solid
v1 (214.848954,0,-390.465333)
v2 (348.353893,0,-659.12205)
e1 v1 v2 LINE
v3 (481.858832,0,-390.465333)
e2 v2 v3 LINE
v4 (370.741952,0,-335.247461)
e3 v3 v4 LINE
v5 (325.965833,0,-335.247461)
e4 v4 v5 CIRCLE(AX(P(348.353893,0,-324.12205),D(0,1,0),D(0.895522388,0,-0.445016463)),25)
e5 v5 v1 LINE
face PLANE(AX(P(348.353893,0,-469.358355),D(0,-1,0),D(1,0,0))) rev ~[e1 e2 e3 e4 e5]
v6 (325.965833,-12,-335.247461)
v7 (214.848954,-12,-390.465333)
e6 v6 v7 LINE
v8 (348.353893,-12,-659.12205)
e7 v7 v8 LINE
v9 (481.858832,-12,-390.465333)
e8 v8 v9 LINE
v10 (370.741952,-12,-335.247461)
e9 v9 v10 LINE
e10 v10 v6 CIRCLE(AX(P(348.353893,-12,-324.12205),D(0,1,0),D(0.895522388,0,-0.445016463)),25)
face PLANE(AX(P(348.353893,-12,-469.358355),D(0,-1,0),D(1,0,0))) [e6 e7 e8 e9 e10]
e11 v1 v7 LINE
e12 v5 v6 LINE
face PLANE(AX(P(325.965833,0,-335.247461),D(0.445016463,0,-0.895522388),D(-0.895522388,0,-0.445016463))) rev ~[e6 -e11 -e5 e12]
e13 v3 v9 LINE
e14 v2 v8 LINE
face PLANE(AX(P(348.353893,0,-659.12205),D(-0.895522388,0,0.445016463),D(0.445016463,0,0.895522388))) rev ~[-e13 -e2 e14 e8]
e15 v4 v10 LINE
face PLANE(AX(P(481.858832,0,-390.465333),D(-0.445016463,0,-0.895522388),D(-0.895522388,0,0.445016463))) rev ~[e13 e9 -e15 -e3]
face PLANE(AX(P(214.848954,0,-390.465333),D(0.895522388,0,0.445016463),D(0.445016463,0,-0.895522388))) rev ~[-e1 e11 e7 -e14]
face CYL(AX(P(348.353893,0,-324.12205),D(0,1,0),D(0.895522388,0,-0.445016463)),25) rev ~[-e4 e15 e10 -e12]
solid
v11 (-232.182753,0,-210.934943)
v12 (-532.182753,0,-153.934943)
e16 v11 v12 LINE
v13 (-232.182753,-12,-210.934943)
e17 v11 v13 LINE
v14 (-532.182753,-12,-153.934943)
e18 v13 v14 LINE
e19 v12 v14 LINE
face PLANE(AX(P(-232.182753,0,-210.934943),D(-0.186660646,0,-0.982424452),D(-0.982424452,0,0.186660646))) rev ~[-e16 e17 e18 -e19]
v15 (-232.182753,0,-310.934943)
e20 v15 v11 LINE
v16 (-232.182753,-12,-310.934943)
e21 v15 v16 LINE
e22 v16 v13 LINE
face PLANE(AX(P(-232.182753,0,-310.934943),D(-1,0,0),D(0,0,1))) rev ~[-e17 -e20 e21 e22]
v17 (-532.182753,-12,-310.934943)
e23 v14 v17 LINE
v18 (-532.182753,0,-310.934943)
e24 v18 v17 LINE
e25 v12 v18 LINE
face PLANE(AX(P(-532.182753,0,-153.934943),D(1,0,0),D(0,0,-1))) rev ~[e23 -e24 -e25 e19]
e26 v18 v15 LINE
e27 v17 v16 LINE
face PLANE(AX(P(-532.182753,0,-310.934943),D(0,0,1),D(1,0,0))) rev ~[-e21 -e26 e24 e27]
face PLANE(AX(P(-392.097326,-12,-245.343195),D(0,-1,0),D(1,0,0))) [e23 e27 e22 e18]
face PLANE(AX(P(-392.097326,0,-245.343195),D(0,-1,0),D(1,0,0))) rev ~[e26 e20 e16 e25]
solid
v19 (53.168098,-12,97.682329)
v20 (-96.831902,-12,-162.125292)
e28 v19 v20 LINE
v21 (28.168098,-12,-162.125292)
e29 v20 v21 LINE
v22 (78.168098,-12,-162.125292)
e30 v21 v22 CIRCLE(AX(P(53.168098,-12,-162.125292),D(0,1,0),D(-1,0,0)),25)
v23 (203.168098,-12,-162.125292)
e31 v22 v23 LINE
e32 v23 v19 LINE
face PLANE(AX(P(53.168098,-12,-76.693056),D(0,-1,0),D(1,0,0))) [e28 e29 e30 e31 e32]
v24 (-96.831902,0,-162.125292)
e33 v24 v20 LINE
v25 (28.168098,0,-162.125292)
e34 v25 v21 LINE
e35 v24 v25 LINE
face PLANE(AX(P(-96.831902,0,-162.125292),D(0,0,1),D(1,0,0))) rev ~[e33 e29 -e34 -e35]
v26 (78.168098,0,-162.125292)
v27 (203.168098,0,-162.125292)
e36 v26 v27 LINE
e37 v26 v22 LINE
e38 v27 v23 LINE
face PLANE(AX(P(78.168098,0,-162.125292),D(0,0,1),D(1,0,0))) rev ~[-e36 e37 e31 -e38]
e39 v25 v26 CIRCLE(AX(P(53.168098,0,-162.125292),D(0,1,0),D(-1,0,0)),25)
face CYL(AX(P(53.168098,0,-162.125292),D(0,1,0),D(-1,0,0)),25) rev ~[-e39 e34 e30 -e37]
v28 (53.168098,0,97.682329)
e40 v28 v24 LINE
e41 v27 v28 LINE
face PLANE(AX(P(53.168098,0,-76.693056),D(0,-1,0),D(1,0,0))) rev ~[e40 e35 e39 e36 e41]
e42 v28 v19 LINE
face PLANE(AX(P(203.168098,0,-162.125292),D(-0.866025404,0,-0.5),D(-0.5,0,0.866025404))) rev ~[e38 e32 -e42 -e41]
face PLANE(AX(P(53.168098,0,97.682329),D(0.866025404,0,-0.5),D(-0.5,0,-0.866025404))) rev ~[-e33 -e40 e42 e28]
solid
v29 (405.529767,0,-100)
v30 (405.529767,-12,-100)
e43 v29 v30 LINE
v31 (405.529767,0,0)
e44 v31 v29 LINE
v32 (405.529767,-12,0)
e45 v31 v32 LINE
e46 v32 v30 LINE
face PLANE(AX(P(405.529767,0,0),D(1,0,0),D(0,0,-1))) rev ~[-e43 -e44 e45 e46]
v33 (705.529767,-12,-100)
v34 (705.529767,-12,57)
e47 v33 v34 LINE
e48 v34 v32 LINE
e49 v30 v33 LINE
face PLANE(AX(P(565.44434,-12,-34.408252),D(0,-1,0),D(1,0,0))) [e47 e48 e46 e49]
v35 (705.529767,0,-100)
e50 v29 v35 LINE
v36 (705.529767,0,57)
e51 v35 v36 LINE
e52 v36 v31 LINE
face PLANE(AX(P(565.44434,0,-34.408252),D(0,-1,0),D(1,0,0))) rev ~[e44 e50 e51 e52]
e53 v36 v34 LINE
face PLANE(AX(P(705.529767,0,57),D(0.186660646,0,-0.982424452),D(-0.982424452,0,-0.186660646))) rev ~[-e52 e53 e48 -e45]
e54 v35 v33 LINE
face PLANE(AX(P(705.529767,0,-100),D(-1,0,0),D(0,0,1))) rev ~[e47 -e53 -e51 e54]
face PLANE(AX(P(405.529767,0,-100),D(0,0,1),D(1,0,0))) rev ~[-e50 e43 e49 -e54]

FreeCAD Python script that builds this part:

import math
import FreeCAD as App
import Part
import Sketcher
from FreeCAD import Vector
Q = App.Units.Quantity

doc = App.newDocument("Part")
params = doc.addObject("Spreadsheet::Sheet", "Params")
for row, (alias, value) in enumerate([
    ("sketch1_radius", "25 mm"),
    ("sketch1_length", "300 mm"),
    ("pad1_length", "12 mm"),
    ("sketch2_radius", "25 mm"),
    ("sketch2_width", "125 mm"),
    ("pad2_length", "12 mm"),
    ("sketch3_width", "300 mm"),
    ("sketch3_height", "100 mm"),
    ("sketch3_height2", "157 mm"),
    ("pad3_length", "12 mm"),
    ("sketch4_width", "300 mm"),
    ("sketch4_height", "157 mm"),
    ("sketch4_height2", "100 mm"),
    ("pad4_length", "12 mm"),
], start=1):
    params.set(f"A{row}", alias)
    params.set(f"B{row}", "=" + value)
    params.setAlias(f"B{row}", alias)

body = doc.addObject("PartDesign::Body", "Body")

sketch1 = body.newObject("Sketcher::SketchObject", "Sketch")
sketch1.AttachmentSupport = (doc.getObject("XZ_Plane"), [""])
sketch1.MapMode = "FlatFace"
sketch1.addGeometry([
    Part.LineSegment(Vector(215, -390, 0), Vector(348, -659, 0)),
    Part.LineSegment(Vector(348, -659, 0), Vector(482, -390, 0)),
    Part.LineSegment(Vector(482, -390, 0), Vector(371, -335, 0)),
    Part.ArcOfCircle(Part.Circle(Vector(348, -324, 0), Vector(0, 0, 1), 25), math.radians(-154), math.radians(-26)),
    Part.LineSegment(Vector(326, -335, 0), Vector(215, -390, 0)),
], False)
sketch1.addConstraint([
    Sketcher.Constraint("Coincident", 0, 2, 1, 1),
    Sketcher.Constraint("Coincident", 1, 2, 2, 1),
    Sketcher.Constraint("Coincident", 2, 2, 3, 2),
    Sketcher.Constraint("Coincident", 3, 1, 4, 1),
    Sketcher.Constraint("Coincident", 4, 2, 0, 1),
    Sketcher.Constraint("Perpendicular", 1, 2),
    Sketcher.Constraint("Perpendicular", 0, 4),
    Sketcher.Constraint("Horizontal", 2, 2, 3, 1),
    Sketcher.Constraint("Horizontal", 1, 2, 4, 2),
    Sketcher.Constraint("Vertical", 3, 3, 0, 2),
    Sketcher.Constraint("Radius", 3, 25.0),
    Sketcher.Constraint("Distance", 0, 300.0),
    Sketcher.Constraint("DistanceY", 0, 2, 3, 3, 335.0),
    Sketcher.Constraint("DistanceX", 3, 1, 1, 2, 155.892999),
    Sketcher.Constraint("DistanceY", 3, 3, -1, 1, 324.12205),
    Sketcher.Constraint("DistanceX", -1, 1, 1, 2, 481.858832),
])
sketch1.setExpression("Constraints[10]", "Params.sketch1_radius")
sketch1.setExpression("Constraints[11]", "Params.sketch1_length")
pad1 = body.newObject("PartDesign::Pad", "Pad")
pad1.Profile = sketch1
pad1.setExpression("Length", "Params.pad1_length")
body2 = doc.addObject("PartDesign::Body", "Body001")

sketch2 = body2.newObject("Sketcher::SketchObject", "Sketch001")
sketch2.AttachmentSupport = (doc.getObject("XZ_Plane001"), [""])
sketch2.MapMode = "FlatFace"
sketch2.addGeometry([
    Part.ArcOfCircle(Part.Circle(Vector(53, -162, 0), Vector(0, 0, 1), 25), math.radians(0), math.radians(180)),
    Part.LineSegment(Vector(78, -162, 0), Vector(203, -162, 0)),
    Part.LineSegment(Vector(203, -162, 0), Vector(53, 98, 0)),
    Part.LineSegment(Vector(53, 98, 0), Vector(-97, -162, 0)),
    Part.LineSegment(Vector(-97, -162, 0), Vector(28, -162, 0)),
], False)
sketch2.addConstraint([
    Sketcher.Constraint("Coincident", 0, 1, 1, 1),
    Sketcher.Constraint("Coincident", 1, 2, 2, 1),
    Sketcher.Constraint("Coincident", 2, 2, 3, 1),
    Sketcher.Constraint("Coincident", 3, 2, 4, 1),
    Sketcher.Constraint("Coincident", 4, 2, 0, 2),
    Sketcher.Constraint("Horizontal", 1),
    Sketcher.Constraint("Horizontal", 4),
    Sketcher.Constraint("Horizontal", 1, 2, 3, 2),
    Sketcher.Constraint("Vertical", 0, 3, 2, 2),
    Sketcher.Constraint("Equal", 1, 4),
    Sketcher.Constraint("Radius", 0, 25.0),
    Sketcher.Constraint("DistanceX", 1, 1, 1, 2, 125.0),
    Sketcher.Constraint("Angle", 2, Q("120 deg")),
    Sketcher.Constraint("DistanceX", -1, 1, 0, 3, 53.168098),
    Sketcher.Constraint("DistanceY", 0, 3, -1, 1, 162.125292),
    Sketcher.Constraint("DistanceY", 0, 1, -1, 1, 162.125292),
])
sketch2.setExpression("Constraints[10]", "Params.sketch2_radius")
sketch2.setExpression("Constraints[11]", "Params.sketch2_width")
pad2 = body2.newObject("PartDesign::Pad", "Pad001")
pad2.Profile = sketch2
pad2.setExpression("Length", "Params.pad2_length")
body3 = doc.addObject("PartDesign::Body", "Body002")

sketch3 = body3.newObject("Sketcher::SketchObject", "Sketch002")
sketch3.AttachmentSupport = (doc.getObject("XZ_Plane002"), [""])
sketch3.MapMode = "FlatFace"
sketch3.addGeometry([
    Part.LineSegment(Vector(706, 57, 0), Vector(406, 0, 0)),
    Part.LineSegment(Vector(406, 0, 0), Vector(406, -100, 0)),
    Part.LineSegment(Vector(406, -100, 0), Vector(706, -100, 0)),
    Part.LineSegment(Vector(706, -100, 0), Vector(706, 57, 0)),
], False)
sketch3.addConstraint([
    Sketcher.Constraint("Coincident", 0, 2, 1, 1),
    Sketcher.Constraint("Coincident", 1, 2, 2, 1),
    Sketcher.Constraint("Coincident", 2, 2, 3, 1),
    Sketcher.Constraint("Coincident", 3, 2, 0, 1),
    Sketcher.Constraint("Vertical", 1),
    Sketcher.Constraint("Horizontal", 2),
    Sketcher.Constraint("Vertical", 3),
    Sketcher.Constraint("PointOnObject", 0, 2, -1),
    Sketcher.Constraint("DistanceX", 2, 1, 2, 2, 300.0),
    Sketcher.Constraint("DistanceY", 1, 2, 1, 1, 100.0),
    Sketcher.Constraint("DistanceY", 3, 1, 3, 2, 157.0),
    Sketcher.Constraint("DistanceX", -1, 1, 0, 2, 405.529767),
])
sketch3.setExpression("Constraints[8]", "Params.sketch3_width")
sketch3.setExpression("Constraints[9]", "Params.sketch3_height")
sketch3.setExpression("Constraints[10]", "Params.sketch3_height2")
pad3 = body3.newObject("PartDesign::Pad", "Pad002")
pad3.Profile = sketch3
pad3.setExpression("Length", "Params.pad3_length")
body4 = doc.addObject("PartDesign::Body", "Body003")

sketch4 = body4.newObject("Sketcher::SketchObject", "Sketch003")
sketch4.AttachmentSupport = (doc.getObject("XZ_Plane003"), [""])
sketch4.MapMode = "FlatFace"
sketch4.addGeometry([
    Part.LineSegment(Vector(-532, -154, 0), Vector(-532, -311, 0)),
    Part.LineSegment(Vector(-532, -311, 0), Vector(-232, -311, 0)),
    Part.LineSegment(Vector(-232, -311, 0), Vector(-232, -211, 0)),
    Part.LineSegment(Vector(-232, -211, 0), Vector(-532, -154, 0)),
], False)
sketch4.addConstraint([
    Sketcher.Constraint("Coincident", 0, 2, 1, 1),
    Sketcher.Constraint("Coincident", 1, 2, 2, 1),
    Sketcher.Constraint("Coincident", 2, 2, 3, 1),
    Sketcher.Constraint("Coincident", 3, 2, 0, 1),
    Sketcher.Constraint("Vertical", 0),
    Sketcher.Constraint("Horizontal", 1),
    Sketcher.Constraint("Vertical", 2),
    Sketcher.Constraint("DistanceX", 1, 1, 1, 2, 300.0),
    Sketcher.Constraint("DistanceY", 0, 2, 0, 1, 157.0),
    Sketcher.Constraint("DistanceY", 2, 1, 2, 2, 100.0),
    Sketcher.Constraint("DistanceX", 0, 2, -1, 1, 532.182753),
    Sketcher.Constraint("DistanceY", 0, 2, -1, 1, 310.934943),
])
sketch4.setExpression("Constraints[7]", "Params.sketch4_width")
sketch4.setExpression("Constraints[8]", "Params.sketch4_height")
sketch4.setExpression("Constraints[9]", "Params.sketch4_height2")
pad4 = body4.newObject("PartDesign::Pad", "Pad003")
pad4.Profile = sketch4
pad4.setExpression("Length", "Params.pad4_length")

doc.recompute()
